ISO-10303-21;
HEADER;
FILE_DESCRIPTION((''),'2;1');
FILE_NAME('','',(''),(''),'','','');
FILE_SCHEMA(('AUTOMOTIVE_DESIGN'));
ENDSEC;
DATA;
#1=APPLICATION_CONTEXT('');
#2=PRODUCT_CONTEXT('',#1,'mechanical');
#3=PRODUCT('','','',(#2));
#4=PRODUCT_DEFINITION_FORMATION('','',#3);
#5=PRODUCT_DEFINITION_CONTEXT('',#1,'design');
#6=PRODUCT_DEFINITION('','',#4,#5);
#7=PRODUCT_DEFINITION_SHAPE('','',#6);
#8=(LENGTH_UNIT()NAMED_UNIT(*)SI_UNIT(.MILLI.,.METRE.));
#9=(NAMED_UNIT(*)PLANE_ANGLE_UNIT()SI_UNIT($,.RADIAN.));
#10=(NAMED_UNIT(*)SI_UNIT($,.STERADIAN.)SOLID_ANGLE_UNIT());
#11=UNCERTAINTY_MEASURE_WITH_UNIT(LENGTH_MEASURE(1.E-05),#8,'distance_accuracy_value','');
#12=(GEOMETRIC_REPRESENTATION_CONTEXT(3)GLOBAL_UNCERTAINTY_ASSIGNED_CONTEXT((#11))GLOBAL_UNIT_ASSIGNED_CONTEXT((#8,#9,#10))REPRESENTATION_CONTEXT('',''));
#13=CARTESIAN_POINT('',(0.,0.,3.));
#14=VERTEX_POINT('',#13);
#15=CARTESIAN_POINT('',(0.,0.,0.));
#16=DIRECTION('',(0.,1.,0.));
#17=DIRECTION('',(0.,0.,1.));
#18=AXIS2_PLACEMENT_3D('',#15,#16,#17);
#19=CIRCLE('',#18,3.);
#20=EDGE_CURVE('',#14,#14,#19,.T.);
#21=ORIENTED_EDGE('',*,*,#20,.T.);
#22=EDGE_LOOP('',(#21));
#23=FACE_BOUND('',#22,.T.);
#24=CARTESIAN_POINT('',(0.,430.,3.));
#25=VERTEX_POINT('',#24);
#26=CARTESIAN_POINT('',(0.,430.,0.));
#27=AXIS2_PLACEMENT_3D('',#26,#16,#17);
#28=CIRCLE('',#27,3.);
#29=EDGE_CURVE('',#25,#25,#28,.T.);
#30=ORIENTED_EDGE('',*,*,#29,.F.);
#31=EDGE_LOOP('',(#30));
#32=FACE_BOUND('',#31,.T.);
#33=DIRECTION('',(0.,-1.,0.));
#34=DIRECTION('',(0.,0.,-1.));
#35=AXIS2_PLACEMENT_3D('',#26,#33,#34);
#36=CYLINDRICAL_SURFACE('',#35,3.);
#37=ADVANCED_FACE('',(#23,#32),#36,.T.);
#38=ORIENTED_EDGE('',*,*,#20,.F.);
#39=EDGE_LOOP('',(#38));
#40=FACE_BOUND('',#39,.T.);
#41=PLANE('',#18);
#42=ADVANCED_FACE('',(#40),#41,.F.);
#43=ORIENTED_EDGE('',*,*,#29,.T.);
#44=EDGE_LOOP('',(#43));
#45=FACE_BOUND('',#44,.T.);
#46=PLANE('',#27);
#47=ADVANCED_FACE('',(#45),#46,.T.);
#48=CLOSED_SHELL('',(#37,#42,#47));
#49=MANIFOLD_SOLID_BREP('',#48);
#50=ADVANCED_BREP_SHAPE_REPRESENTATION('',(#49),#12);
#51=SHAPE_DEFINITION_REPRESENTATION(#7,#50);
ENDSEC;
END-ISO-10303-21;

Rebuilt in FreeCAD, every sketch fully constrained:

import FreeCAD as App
import Part
import Sketcher

V = App.Vector

doc = App.newDocument("Part")
body = doc.addObject("PartDesign::Body", "Body")

# Sketch on XZ plane
sketch1 = body.newObject("Sketcher::SketchObject", "Sketch")
sketch1.AttachmentSupport = (doc.getObject("XZ_Plane"), [""])
sketch1.MapMode = "FlatFace"
sketch1.addGeometry(Part.Circle(V(0, 0, 0), V(0, 0, 1), 3), False)
sketch1.addConstraint([
    Sketcher.Constraint("Coincident", 0, 3, -1, 1),
    Sketcher.Constraint("Diameter", 0, 6.0),
])
pad1 = body.newObject("PartDesign::Pad", "Pad")
pad1.Profile = sketch1
pad1.Length = 430
pad1.Reversed = True

doc.recompute()
